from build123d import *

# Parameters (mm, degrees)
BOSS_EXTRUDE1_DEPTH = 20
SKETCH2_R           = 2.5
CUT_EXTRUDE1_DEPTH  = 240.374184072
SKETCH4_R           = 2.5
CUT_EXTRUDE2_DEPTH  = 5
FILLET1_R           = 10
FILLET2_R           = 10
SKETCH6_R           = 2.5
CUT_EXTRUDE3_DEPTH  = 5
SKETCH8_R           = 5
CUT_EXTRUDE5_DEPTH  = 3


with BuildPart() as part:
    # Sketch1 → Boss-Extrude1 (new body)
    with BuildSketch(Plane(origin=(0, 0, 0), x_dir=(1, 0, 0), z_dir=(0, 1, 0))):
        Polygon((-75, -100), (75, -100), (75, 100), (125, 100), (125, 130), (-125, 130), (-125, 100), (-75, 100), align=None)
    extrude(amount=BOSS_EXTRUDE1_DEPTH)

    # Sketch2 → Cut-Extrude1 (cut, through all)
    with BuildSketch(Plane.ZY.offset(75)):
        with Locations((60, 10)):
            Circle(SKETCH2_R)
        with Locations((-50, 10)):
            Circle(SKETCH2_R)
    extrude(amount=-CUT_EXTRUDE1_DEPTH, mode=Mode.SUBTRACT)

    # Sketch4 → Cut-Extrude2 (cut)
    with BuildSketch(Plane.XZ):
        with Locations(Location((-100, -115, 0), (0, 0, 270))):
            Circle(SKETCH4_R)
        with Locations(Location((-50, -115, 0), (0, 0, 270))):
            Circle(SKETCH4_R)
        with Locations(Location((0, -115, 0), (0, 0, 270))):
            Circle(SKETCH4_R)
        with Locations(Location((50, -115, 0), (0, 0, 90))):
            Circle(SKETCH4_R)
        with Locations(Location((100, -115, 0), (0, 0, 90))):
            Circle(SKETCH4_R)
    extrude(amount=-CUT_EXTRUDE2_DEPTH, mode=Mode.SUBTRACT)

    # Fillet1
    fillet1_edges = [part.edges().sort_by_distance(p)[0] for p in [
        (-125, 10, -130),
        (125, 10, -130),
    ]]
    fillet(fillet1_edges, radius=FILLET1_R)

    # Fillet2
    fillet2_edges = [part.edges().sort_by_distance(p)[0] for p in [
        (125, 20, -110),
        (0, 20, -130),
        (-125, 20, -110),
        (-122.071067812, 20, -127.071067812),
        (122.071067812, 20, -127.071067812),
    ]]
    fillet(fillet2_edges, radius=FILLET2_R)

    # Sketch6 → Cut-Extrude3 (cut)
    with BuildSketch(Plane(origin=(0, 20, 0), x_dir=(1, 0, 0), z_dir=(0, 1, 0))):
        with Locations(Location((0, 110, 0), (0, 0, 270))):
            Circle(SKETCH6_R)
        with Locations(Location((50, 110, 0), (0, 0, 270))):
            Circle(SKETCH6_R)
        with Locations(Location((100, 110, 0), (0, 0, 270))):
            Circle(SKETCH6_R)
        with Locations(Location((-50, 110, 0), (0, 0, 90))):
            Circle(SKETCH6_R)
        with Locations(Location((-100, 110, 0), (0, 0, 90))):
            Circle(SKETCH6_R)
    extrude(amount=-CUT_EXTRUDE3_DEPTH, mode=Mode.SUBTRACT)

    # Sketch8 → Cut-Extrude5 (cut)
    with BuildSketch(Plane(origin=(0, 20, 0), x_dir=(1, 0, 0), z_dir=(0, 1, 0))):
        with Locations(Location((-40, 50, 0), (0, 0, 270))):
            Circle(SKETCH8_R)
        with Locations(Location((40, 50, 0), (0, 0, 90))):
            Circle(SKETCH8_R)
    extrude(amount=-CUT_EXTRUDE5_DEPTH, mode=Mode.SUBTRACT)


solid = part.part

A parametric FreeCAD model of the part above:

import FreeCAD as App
import Part
import Sketcher
from FreeCAD import Vector
Q = App.Units.Quantity


def edges_at(feature, points):
    """Names of the edges that pass closest to the given points."""
    edges = feature.Shape.Edges
    near = lambda p: min(range(len(edges)), key=lambda i: edges[i].distToShape(Part.Vertex(*p))[0])
    return sorted({f"Edge{near(p) + 1}" for p in points})


def add_polygon(sketch, points):
    """Adds a closed chain of lines whose ends are joined by coincident constraints."""
    first, n = sketch.GeometryCount, len(points)
    for a, b in zip(points, points[1:] + points[:1]):
        sketch.addGeometry(Part.LineSegment(App.Vector(*a, 0), App.Vector(*b, 0)), False)
    for i in range(n):
        sketch.addConstraint(Sketcher.Constraint("Coincident", first + i, 2, first + (i + 1) % n, 1))

doc = App.newDocument("Part")
body = doc.addObject("PartDesign::Body", "Body")

sketch1 = body.newObject("Sketcher::SketchObject", "Sketch")
sketch1.AttachmentSupport = (doc.getObject("XZ_Plane"), [""])
sketch1.MapMode = "FlatFace"
add_polygon(sketch1, [(-75, 100), (75, 100), (75, -100), (125, -100), (125, -130), (-125, -130), (-125, -100), (-75, -100)])
sketch1.addConstraint(Sketcher.Constraint("Horizontal", 0))
sketch1.addConstraint(Sketcher.Constraint("Vertical", 1))
sketch1.addConstraint(Sketcher.Constraint("Horizontal", 2))
sketch1.addConstraint(Sketcher.Constraint("Vertical", 3))
sketch1.addConstraint(Sketcher.Constraint("Horizontal", 4))
sketch1.addConstraint(Sketcher.Constraint("Vertical", 5))
sketch1.addConstraint(Sketcher.Constraint("Horizontal", 6))
sketch1.addConstraint(Sketcher.Constraint("Vertical", 7))
sketch1.addConstraint(Sketcher.Constraint("Symmetric", 0, 2, 6, 2, -1, 1))
sketch1.addConstraint(Sketcher.Constraint("Symmetric", 2, 2, 5, 2, -2))
sketch1.addConstraint(Sketcher.Constraint("DistanceX", 0, 1, 0, 2, Q("150 mm")))
sketch1.addConstraint(Sketcher.Constraint("DistanceX", 2, 1, 2, 2, Q("50 mm")))
sketch1.addConstraint(Sketcher.Constraint("DistanceY", 1, 2, 1, 1, Q("200 mm")))
sketch1.addConstraint(Sketcher.Constraint("DistanceY", 3, 2, 3, 1, Q("30 mm")))
pad1 = body.newObject("PartDesign::Pad", "Pad")
pad1.Profile = sketch1
pad1.Length = 20
pad1.Reversed = True

sketch2 = body.newObject("Sketcher::SketchObject", "Sketch001")
sketch2.AttachmentSupport = (doc.getObject("YZ_Plane"), [""])
sketch2.MapMode = "FlatFace"
sketch2.AttachmentOffset = App.Placement(Vector(0, 0, -75), App.Rotation())
sketch2.addGeometry(Part.Circle(Vector(10, 60, 0), Vector(0, 0, 1), 2.5), False)
sketch2.addGeometry(Part.Circle(Vector(10, -50, 0), Vector(0, 0, 1), 2.5), False)
sketch2.addConstraint(Sketcher.Constraint("Equal", 0, 1))
sketch2.addConstraint(Sketcher.Constraint("Vertical", 0, 3, 1, 3))
sketch2.addConstraint(Sketcher.Constraint("Diameter", 0, Q("5 mm")))
sketch2.addConstraint(Sketcher.Constraint("DistanceX", -1, 1, 0, 3, Q("10 mm")))
sketch2.addConstraint(Sketcher.Constraint("DistanceY", -1, 1, 0, 3, Q("60 mm")))
sketch2.addConstraint(Sketcher.Constraint("DistanceY", 1, 3, -1, 1, Q("50 mm")))
pocket1 = body.newObject("PartDesign::Pocket", "Pocket")
pocket1.Profile = sketch2
pocket1.Type = "ThroughAll"
pocket1.Reversed = True

sketch3 = body.newObject("Sketcher::SketchObject", "Sketch002")
sketch3.AttachmentSupport = (doc.getObject("XZ_Plane"), [""])
sketch3.MapMode = "FlatFace"
sketch3.addGeometry(Part.Circle(Vector(-100, -115, 0), Vector(0, 0, 1), 2.5), False)
sketch3.addGeometry(Part.Circle(Vector(-50, -115, 0), Vector(0, 0, 1), 2.5), False)
sketch3.addGeometry(Part.Circle(Vector(0, -115, 0), Vector(0, 0, 1), 2.5), False)
sketch3.addGeometry(Part.Circle(Vector(50, -115, 0), Vector(0, 0, 1), 2.5), False)
sketch3.addGeometry(Part.Circle(Vector(100, -115, 0), Vector(0, 0, 1), 2.5), False)
sketch3.addConstraint(Sketcher.Constraint("Equal", 0, 1))
sketch3.addConstraint(Sketcher.Constraint("Equal", 1, 2))
sketch3.addConstraint(Sketcher.Constraint("Equal", 2, 3))
sketch3.addConstraint(Sketcher.Constraint("Equal", 3, 4))
sketch3.addConstraint(Sketcher.Constraint("Symmetric", 1, 3, 3, 3, -2))
sketch3.addConstraint(Sketcher.Constraint("Symmetric", 0, 3, 4, 3, -2))
sketch3.addConstraint(Sketcher.Constraint("PointOnObject", 2, 3, -2))
sketch3.addConstraint(Sketcher.Constraint("Horizontal", 0, 3, 1, 3))
sketch3.addConstraint(Sketcher.Constraint("Horizontal", 1, 3, 2, 3))
sketch3.addConstraint(Sketcher.Constraint("Diameter", 0, Q("5 mm")))
sketch3.addConstraint(Sketcher.Constraint("DistanceX", 0, 3, -1, 1, Q("100 mm")))
sketch3.addConstraint(Sketcher.Constraint("DistanceY", 0, 3, -1, 1, Q("115 mm")))
sketch3.addConstraint(Sketcher.Constraint("DistanceX", 1, 3, -1, 1, Q("50 mm")))
pocket2 = body.newObject("PartDesign::Pocket", "Pocket001")
pocket2.Profile = sketch3
pocket2.Length = 5
doc.recompute()

fillet = body.newObject("PartDesign::Fillet", "Fillet")
fillet.Base = (pocket2, edges_at(pocket2, [(-125, 10, -130), (125, 10, -130)]))
fillet.Radius = 10
doc.recompute()

fillet2 = body.newObject("PartDesign::Fillet", "Fillet001")
fillet2.Base = (fillet, edges_at(fillet, [
    (125, 20, -110),
    (0, 20, -130),
    (-125, 20, -110),
    (-122.071, 20, -127.071),
    (122.071, 20, -127.071),
]))
fillet2.Radius = 10

sketch4 = body.newObject("Sketcher::SketchObject", "Sketch003")
sketch4.AttachmentSupport = (doc.getObject("XZ_Plane"), [""])
sketch4.MapMode = "FlatFace"
sketch4.AttachmentOffset = App.Placement(Vector(0, 0, -20), App.Rotation())
sketch4.addGeometry(Part.Circle(Vector(0, -110, 0), Vector(0, 0, 1), 2.5), False)
sketch4.addGeometry(Part.Circle(Vector(50, -110, 0), Vector(0, 0, 1), 2.5), False)
sketch4.addGeometry(Part.Circle(Vector(100, -110, 0), Vector(0, 0, 1), 2.5), False)
sketch4.addGeometry(Part.Circle(Vector(-50, -110, 0), Vector(0, 0, 1), 2.5), False)
sketch4.addGeometry(Part.Circle(Vector(-100, -110, 0), Vector(0, 0, 1), 2.5), False)
sketch4.addConstraint(Sketcher.Constraint("Equal", 0, 1))
sketch4.addConstraint(Sketcher.Constraint("Equal", 1, 2))
sketch4.addConstraint(Sketcher.Constraint("Equal", 2, 3))
sketch4.addConstraint(Sketcher.Constraint("Equal", 3, 4))
sketch4.addConstraint(Sketcher.Constraint("Symmetric", 1, 3, 3, 3, -2))
sketch4.addConstraint(Sketcher.Constraint("Symmetric", 2, 3, 4, 3, -2))
sketch4.addConstraint(Sketcher.Constraint("PointOnObject", 0, 3, -2))
sketch4.addConstraint(Sketcher.Constraint("Horizontal", 0, 3, 1, 3))
sketch4.addConstraint(Sketcher.Constraint("Horizontal", 1, 3, 2, 3))
sketch4.addConstraint(Sketcher.Constraint("Diameter", 0, Q("5 mm")))
sketch4.addConstraint(Sketcher.Constraint("DistanceY", 0, 3, -1, 1, Q("110 mm")))
sketch4.addConstraint(Sketcher.Constraint("DistanceX", -1, 1, 1, 3, Q("50 mm")))
sketch4.addConstraint(Sketcher.Constraint("DistanceX", -1, 1, 2, 3, Q("100 mm")))
pocket3 = body.newObject("PartDesign::Pocket", "Pocket002")
pocket3.Profile = sketch4
pocket3.Length = 5
pocket3.Reversed = True

sketch5 = body.newObject("Sketcher::SketchObject", "Sketch004")
sketch5.AttachmentSupport = (doc.getObject("XZ_Plane"), [""])
sketch5.MapMode = "FlatFace"
sketch5.AttachmentOffset = App.Placement(Vector(0, 0, -20), App.Rotation())
sketch5.addGeometry(Part.Circle(Vector(-40, -50, 0), Vector(0, 0, 1), 5), False)
sketch5.addGeometry(Part.Circle(Vector(40, -50, 0), Vector(0, 0, 1), 5), False)
sketch5.addConstraint(Sketcher.Constraint("Equal", 0, 1))
sketch5.addConstraint(Sketcher.Constraint("Symmetric", 0, 3, 1, 3, -2))
sketch5.addConstraint(Sketcher.Constraint("Diameter", 0, Q("10 mm")))
sketch5.addConstraint(Sketcher.Constraint("DistanceX", 0, 3, -1, 1, Q("40 mm")))
sketch5.addConstraint(Sketcher.Constraint("DistanceY", 0, 3, -1, 1, Q("50 mm")))
pocket4 = body.newObject("PartDesign::Pocket", "Pocket003")
pocket4.Profile = sketch5
pocket4.Length = 3
pocket4.Reversed = True

doc.recompute()
